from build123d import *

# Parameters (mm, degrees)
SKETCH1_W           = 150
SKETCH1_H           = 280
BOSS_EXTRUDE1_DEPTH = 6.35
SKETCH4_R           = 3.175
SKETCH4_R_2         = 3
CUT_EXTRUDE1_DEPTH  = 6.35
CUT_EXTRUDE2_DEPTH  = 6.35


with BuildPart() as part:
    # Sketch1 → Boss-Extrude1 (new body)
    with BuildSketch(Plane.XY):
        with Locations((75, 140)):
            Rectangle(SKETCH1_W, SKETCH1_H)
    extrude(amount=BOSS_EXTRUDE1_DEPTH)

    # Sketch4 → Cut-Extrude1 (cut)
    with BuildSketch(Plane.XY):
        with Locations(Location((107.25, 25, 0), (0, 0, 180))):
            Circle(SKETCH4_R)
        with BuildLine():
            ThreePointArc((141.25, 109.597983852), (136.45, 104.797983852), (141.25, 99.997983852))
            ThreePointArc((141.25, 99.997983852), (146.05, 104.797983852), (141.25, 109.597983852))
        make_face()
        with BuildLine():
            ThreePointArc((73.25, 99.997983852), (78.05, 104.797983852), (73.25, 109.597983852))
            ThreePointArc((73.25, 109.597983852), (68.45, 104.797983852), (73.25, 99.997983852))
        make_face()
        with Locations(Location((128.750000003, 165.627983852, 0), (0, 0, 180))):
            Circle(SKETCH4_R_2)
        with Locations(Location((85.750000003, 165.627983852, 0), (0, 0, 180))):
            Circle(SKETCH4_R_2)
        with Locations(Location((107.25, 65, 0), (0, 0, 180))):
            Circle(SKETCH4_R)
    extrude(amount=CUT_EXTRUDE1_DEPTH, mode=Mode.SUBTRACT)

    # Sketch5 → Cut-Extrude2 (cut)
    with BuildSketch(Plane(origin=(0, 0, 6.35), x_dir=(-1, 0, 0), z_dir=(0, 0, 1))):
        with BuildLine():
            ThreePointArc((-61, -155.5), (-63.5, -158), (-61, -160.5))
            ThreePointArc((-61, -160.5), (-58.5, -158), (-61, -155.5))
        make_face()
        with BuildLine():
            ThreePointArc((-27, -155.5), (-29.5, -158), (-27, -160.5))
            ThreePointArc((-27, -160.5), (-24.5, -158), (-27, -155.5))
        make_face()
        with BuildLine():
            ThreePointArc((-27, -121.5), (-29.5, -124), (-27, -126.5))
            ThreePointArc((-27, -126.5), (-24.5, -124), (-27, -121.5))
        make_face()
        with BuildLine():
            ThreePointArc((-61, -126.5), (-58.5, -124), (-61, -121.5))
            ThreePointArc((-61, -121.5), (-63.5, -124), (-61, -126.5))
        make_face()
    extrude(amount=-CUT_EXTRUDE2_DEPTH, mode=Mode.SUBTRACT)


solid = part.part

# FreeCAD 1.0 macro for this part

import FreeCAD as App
import Part
import Sketcher
Q = App.Units.Quantity

doc = App.newDocument("Part")
body = doc.addObject("PartDesign::Body", "Body")

# Sketch on XY plane
sketch1 = body.newObject("Sketcher::SketchObject", "Sketch")
sketch1.AttachmentSupport = (doc.getObject("XY_Plane"), [""])
sketch1.MapMode = "FlatFace"
sketch1.addGeometry([
    Part.LineSegment(App.Vector(0, 280, 0), App.Vector(0, 0, 0)),
    Part.LineSegment(App.Vector(0, 0, 0), App.Vector(150, 0, 0)),
    Part.LineSegment(App.Vector(150, 0, 0), App.Vector(150, 280, 0)),
    Part.LineSegment(App.Vector(150, 280, 0), App.Vector(0, 280, 0)),
], False)
sketch1.addConstraint([
    Sketcher.Constraint("Coincident", 0, 2, 1, 1),
    Sketcher.Constraint("Coincident", 1, 2, 2, 1),
    Sketcher.Constraint("Coincident", 2, 2, 3, 1),
    Sketcher.Constraint("Coincident", 3, 2, 0, 1),
    Sketcher.Constraint("Vertical", 0),
    Sketcher.Constraint("Horizontal", 1),
    Sketcher.Constraint("Vertical", 2),
    Sketcher.Constraint("Horizontal", 3),
    Sketcher.Constraint("Coincident", 0, 2, -1, 1),
    Sketcher.Constraint("DistanceX", 1, 1, 1, 2, Q("150 mm")),
    Sketcher.Constraint("DistanceY", 0, 2, 0, 1, Q("280 mm")),
])
pad1 = body.newObject("PartDesign::Pad", "Pad")
pad1.Profile = sketch1
pad1.Length = 6.35

# Sketch on XY plane
sketch2 = body.newObject("Sketcher::SketchObject", "Sketch001")
sketch2.AttachmentSupport = (doc.getObject("XY_Plane"), [""])
sketch2.MapMode = "FlatFace"
sketch2.addGeometry([
    Part.Circle(App.Vector(107.2, 25, 0), App.Vector(0, 0, 1), 3.2),  # 0
    Part.Circle(App.Vector(141.2, 104.8, 0), App.Vector(0, 0, 1), 4.8),  # 1
    Part.Circle(App.Vector(73.2, 104.8, 0), App.Vector(0, 0, 1), 4.8),  # 2
    Part.Circle(App.Vector(128.8, 165.6, 0), App.Vector(0, 0, 1), 3),  # 3
    Part.Circle(App.Vector(85.8, 165.6, 0), App.Vector(0, 0, 1), 3),  # 4
    Part.Circle(App.Vector(107.2, 65, 0), App.Vector(0, 0, 1), 3.2),  # 5
], False)
sketch2.addConstraint([
    Sketcher.Constraint("Equal", 1, 2),
    Sketcher.Constraint("Equal", 3, 4),
    Sketcher.Constraint("Equal", 0, 5),
    Sketcher.Constraint("Horizontal", 1, 3, 2, 3),
    Sketcher.Constraint("Horizontal", 3, 3, 4, 3),
    Sketcher.Constraint("Vertical", 0, 3, 5, 3),
    Sketcher.Constraint("Diameter", 3, Q("6 mm")),
    Sketcher.Constraint("Diameter", 1, Q("9.6 mm")),
    Sketcher.Constraint("Diameter", 0, Q("6.35 mm")),
    Sketcher.Constraint("DistanceY", -1, 1, 0, 3, Q("25 mm")),
    Sketcher.Constraint("DistanceY", -1, 1, 5, 3, Q("65 mm")),
    Sketcher.Constraint("DistanceX", 0, 3, 1, 3, Q("34 mm")),
    Sketcher.Constraint("DistanceX", 2, 3, 1, 3, Q("68 mm")),
    Sketcher.Constraint("DistanceX", 4, 3, 3, 3, Q("43 mm")),
    Sketcher.Constraint("DistanceX", 3, 3, 1, 3, Q("12.5 mm")),
    Sketcher.Constraint("DistanceX", -1, 1, 0, 3, Q("107.25 mm")),
    Sketcher.Constraint("DistanceY", 1, 3, 3, 3, Q("60.83 mm")),
    Sketcher.Constraint("DistanceY", -1, 1, 1, 3, Q("104.797984 mm")),
])
pocket1 = body.newObject("PartDesign::Pocket", "Pocket")
pocket1.Profile = sketch2
pocket1.Length = 6.35
pocket1.Reversed = True

# Sketch on XY plane
sketch3 = body.newObject("Sketcher::SketchObject", "Sketch002")
sketch3.AttachmentSupport = (doc.getObject("XY_Plane"), [""])
sketch3.MapMode = "FlatFace"
sketch3.AttachmentOffset = App.Placement(App.Vector(0, 0, 6.35), App.Rotation())
sketch3.addGeometry([
    Part.Circle(App.Vector(61, 158, 0), App.Vector(0, 0, 1), 2.5),
    Part.Circle(App.Vector(27, 158, 0), App.Vector(0, 0, 1), 2.5),
    Part.Circle(App.Vector(27, 124, 0), App.Vector(0, 0, 1), 2.5),
    Part.Circle(App.Vector(61, 124, 0), App.Vector(0, 0, 1), 2.5),
], False)
sketch3.addConstraint([
    Sketcher.Constraint("Equal", 0, 1),
    Sketcher.Constraint("Equal", 1, 2),
    Sketcher.Constraint("Equal", 2, 3),
    Sketcher.Constraint("Horizontal", 0, 3, 1, 3),
    Sketcher.Constraint("Horizontal", 2, 3, 3, 3),
    Sketcher.Constraint("Vertical", 1, 3, 2, 3),
    Sketcher.Constraint("Vertical", 0, 3, 3, 3),
    Sketcher.Constraint("Diameter", 0, Q("5 mm")),
    Sketcher.Constraint("DistanceX", -1, 1, 0, 3, Q("61 mm")),
    Sketcher.Constraint("DistanceY", -1, 1, 0, 3, Q("158 mm")),
    Sketcher.Constraint("DistanceX", -1, 1, 1, 3, Q("27 mm")),
    Sketcher.Constraint("DistanceY", -1, 1, 2, 3, Q("124 mm")),
])
pocket2 = body.newObject("PartDesign::Pocket", "Pocket001")
pocket2.Profile = sketch3
pocket2.Length = 6.35

doc.recompute()
